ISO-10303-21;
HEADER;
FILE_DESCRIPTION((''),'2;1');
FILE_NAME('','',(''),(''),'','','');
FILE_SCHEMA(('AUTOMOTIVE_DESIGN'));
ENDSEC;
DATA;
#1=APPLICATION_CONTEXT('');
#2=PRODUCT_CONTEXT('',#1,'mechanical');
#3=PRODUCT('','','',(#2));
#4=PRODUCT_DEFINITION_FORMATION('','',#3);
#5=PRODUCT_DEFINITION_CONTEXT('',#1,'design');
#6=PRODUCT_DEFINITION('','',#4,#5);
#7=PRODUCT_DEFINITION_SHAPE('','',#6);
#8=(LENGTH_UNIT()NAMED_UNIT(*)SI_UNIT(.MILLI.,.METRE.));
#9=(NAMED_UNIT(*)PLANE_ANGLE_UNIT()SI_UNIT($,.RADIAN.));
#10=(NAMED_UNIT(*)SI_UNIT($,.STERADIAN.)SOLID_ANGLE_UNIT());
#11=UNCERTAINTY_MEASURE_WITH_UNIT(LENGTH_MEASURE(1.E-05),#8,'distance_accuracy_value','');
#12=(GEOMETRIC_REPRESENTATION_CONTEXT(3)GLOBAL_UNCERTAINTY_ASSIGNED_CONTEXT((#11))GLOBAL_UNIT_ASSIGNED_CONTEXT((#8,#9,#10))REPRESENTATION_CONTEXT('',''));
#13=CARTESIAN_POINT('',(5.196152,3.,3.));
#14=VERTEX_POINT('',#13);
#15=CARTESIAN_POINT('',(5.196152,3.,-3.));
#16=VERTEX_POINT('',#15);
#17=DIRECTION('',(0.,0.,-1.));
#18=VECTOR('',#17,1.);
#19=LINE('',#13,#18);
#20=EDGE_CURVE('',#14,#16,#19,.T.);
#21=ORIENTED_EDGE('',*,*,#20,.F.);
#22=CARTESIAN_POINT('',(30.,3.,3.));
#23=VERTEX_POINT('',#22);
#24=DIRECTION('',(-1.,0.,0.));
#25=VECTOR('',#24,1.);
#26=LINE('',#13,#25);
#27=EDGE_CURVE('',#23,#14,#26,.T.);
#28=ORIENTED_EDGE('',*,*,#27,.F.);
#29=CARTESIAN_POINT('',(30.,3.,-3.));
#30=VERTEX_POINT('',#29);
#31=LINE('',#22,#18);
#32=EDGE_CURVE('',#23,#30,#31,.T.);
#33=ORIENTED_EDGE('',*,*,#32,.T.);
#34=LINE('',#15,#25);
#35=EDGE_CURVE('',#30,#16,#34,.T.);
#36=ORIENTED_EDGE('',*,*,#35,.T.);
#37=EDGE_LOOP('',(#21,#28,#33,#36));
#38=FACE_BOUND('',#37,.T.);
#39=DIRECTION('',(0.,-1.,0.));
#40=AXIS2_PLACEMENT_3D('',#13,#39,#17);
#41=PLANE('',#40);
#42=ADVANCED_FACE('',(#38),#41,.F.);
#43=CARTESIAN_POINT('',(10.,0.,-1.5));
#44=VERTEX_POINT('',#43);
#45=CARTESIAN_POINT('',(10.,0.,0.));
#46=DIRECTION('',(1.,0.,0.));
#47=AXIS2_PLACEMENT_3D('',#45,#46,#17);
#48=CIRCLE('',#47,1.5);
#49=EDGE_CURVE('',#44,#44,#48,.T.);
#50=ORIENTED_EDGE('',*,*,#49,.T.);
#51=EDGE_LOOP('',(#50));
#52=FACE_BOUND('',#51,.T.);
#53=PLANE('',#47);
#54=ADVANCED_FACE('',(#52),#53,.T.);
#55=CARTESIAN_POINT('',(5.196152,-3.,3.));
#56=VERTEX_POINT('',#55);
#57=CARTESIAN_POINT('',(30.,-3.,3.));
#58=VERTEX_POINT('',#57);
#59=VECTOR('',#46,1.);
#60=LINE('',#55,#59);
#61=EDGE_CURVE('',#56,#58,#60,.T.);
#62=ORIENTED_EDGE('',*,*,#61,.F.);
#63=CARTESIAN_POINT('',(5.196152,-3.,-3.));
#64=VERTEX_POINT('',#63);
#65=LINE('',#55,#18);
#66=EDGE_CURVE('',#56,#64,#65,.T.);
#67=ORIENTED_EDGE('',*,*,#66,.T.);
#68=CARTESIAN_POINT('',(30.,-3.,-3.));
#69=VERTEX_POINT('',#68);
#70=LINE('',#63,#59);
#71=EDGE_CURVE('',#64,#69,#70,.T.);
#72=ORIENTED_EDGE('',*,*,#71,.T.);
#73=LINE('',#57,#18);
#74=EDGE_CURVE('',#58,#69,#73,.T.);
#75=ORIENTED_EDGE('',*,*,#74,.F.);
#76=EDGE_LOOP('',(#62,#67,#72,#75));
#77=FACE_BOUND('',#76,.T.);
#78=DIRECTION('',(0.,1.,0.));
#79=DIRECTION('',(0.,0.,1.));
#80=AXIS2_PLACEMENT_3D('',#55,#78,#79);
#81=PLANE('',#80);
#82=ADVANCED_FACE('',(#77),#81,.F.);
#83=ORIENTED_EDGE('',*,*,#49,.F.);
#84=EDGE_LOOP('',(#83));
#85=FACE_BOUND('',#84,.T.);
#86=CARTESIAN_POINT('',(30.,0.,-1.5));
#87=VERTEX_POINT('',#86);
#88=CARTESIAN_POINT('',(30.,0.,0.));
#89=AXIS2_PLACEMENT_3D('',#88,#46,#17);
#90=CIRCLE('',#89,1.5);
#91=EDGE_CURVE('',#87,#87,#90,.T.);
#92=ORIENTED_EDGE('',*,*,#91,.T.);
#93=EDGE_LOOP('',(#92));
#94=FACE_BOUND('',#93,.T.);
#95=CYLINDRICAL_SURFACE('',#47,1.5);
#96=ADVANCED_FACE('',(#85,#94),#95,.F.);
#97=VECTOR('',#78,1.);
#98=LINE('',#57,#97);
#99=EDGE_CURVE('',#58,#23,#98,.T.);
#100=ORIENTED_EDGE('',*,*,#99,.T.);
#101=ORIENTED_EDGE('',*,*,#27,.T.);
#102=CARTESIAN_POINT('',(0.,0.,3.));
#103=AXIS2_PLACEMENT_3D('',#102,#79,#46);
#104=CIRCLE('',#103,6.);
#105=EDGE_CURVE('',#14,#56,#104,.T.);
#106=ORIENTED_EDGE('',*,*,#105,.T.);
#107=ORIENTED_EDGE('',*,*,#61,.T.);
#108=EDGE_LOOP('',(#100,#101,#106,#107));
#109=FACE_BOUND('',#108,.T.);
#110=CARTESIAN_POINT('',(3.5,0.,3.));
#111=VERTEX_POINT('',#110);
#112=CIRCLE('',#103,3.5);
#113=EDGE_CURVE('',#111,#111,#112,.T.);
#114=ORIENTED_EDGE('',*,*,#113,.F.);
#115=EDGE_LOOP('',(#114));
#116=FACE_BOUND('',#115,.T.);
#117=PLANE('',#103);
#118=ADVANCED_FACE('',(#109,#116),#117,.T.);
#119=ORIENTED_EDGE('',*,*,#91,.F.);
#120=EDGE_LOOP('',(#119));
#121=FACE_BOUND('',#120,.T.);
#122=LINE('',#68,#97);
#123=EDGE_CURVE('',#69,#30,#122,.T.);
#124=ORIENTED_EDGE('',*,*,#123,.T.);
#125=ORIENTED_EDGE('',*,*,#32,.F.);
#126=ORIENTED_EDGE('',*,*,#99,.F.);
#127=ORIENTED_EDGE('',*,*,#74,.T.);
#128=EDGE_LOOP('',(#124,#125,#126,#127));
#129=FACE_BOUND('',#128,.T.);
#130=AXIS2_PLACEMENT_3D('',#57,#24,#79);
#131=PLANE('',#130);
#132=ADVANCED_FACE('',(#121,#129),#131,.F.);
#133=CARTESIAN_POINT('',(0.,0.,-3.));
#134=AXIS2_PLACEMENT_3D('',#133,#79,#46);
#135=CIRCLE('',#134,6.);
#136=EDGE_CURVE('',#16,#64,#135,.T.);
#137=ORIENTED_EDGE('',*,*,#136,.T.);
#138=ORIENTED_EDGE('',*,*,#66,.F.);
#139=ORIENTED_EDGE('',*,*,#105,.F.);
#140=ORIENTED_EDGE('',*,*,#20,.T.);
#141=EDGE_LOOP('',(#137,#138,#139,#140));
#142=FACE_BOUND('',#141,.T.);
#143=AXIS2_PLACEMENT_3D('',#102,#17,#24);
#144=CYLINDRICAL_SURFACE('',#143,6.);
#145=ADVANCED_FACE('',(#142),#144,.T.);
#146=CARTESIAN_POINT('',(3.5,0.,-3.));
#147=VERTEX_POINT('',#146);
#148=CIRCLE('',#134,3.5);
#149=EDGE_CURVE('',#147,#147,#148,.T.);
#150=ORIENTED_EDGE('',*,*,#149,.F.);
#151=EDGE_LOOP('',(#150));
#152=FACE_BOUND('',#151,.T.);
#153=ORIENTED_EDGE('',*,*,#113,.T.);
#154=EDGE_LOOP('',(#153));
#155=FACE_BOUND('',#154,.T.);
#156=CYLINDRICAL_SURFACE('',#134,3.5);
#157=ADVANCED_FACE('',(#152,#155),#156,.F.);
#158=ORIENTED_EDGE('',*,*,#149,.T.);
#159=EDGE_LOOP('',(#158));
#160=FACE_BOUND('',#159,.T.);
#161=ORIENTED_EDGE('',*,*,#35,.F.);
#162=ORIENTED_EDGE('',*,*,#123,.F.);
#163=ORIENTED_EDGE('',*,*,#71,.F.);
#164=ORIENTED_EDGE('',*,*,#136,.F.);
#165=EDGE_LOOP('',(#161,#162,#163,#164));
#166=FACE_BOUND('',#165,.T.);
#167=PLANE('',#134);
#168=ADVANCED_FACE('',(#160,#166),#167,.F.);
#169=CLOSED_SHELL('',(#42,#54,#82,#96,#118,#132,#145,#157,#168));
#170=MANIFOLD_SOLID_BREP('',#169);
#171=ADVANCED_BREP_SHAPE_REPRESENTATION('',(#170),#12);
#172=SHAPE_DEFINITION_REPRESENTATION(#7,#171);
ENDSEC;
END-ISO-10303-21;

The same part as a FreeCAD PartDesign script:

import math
import FreeCAD as App
import Part
import Sketcher
from FreeCAD import Vector

doc = App.newDocument("Part")
body = doc.addObject("PartDesign::Body", "Body")

# Sketch on XY plane
sketch1 = body.newObject("Sketcher::SketchObject", "Sketch")
sketch1.AttachmentSupport = (doc.getObject("XY_Plane"), [""])
sketch1.MapMode = "FlatFace"
sketch1.addGeometry([
    Part.LineSegment(Vector(5, -3, 0), Vector(30, -3, 0)),
    Part.LineSegment(Vector(30, -3, 0), Vector(30, 3, 0)),
    Part.LineSegment(Vector(30, 3, 0), Vector(5, 3, 0)),
    Part.ArcOfCircle(Part.Circle(Vector(0, 0, 0), Vector(0, 0, 1), 6), math.radians(30), math.radians(330)),
], False)
sketch1.addConstraint([
    Sketcher.Constraint("Coincident", 0, 2, 1, 1),
    Sketcher.Constraint("Coincident", 1, 2, 2, 1),
    Sketcher.Constraint("Coincident", 2, 2, 3, 1),
    Sketcher.Constraint("Coincident", 3, 2, 0, 1),
    Sketcher.Constraint("Horizontal", 0),
    Sketcher.Constraint("Vertical", 1),
    Sketcher.Constraint("Horizontal", 2),
    Sketcher.Constraint("Coincident", 3, 3, -1, 1),
    Sketcher.Constraint("Vertical", 2, 2, 3, 2),
    Sketcher.Constraint("Radius", 3, 6.0),
    Sketcher.Constraint("DistanceY", 1, 1, 1, 2, 6.0),
    Sketcher.Constraint("DistanceX", -1, 1, 0, 2, 30.0),
])
pad1 = body.newObject("PartDesign::Pad", "Pad")
pad1.Profile = sketch1
pad1.Length = 6
pad1.Midplane = True

# Sketch on XY plane
sketch2 = body.newObject("Sketcher::SketchObject", "Sketch001")
sketch2.AttachmentSupport = (doc.getObject("XY_Plane"), [""])
sketch2.MapMode = "FlatFace"
sketch2.AttachmentOffset = App.Placement(Vector(0, 0, 3), App.Rotation())
sketch2.addGeometry(Part.Circle(Vector(0, 0, 0), Vector(0, 0, 1), 3.5), False)
sketch2.addConstraint([
    Sketcher.Constraint("Coincident", 0, 3, -1, 1),
    Sketcher.Constraint("Diameter", 0, 7.0),
])
pocket1 = body.newObject("PartDesign::Pocket", "Pocket")
pocket1.Profile = sketch2
pocket1.Type = "ThroughAll"
pocket1.Midplane = True

# Sketch on YZ plane
sketch3 = body.newObject("Sketcher::SketchObject", "Sketch002")
sketch3.AttachmentSupport = (doc.getObject("YZ_Plane"), [""])
sketch3.MapMode = "FlatFace"
sketch3.AttachmentOffset = App.Placement(Vector(0, 0, 30), App.Rotation())
sketch3.addGeometry(Part.Circle(Vector(0, 0, 0), Vector(0, 0, 1), 1.5), False)
sketch3.addConstraint([
    Sketcher.Constraint("Coincident", 0, 3, -1, 1),
    Sketcher.Constraint("Diameter", 0, 3.0),
])
pocket2 = body.newObject("PartDesign::Pocket", "Pocket001")
pocket2.Profile = sketch3
pocket2.Length = 20

doc.recompute()
